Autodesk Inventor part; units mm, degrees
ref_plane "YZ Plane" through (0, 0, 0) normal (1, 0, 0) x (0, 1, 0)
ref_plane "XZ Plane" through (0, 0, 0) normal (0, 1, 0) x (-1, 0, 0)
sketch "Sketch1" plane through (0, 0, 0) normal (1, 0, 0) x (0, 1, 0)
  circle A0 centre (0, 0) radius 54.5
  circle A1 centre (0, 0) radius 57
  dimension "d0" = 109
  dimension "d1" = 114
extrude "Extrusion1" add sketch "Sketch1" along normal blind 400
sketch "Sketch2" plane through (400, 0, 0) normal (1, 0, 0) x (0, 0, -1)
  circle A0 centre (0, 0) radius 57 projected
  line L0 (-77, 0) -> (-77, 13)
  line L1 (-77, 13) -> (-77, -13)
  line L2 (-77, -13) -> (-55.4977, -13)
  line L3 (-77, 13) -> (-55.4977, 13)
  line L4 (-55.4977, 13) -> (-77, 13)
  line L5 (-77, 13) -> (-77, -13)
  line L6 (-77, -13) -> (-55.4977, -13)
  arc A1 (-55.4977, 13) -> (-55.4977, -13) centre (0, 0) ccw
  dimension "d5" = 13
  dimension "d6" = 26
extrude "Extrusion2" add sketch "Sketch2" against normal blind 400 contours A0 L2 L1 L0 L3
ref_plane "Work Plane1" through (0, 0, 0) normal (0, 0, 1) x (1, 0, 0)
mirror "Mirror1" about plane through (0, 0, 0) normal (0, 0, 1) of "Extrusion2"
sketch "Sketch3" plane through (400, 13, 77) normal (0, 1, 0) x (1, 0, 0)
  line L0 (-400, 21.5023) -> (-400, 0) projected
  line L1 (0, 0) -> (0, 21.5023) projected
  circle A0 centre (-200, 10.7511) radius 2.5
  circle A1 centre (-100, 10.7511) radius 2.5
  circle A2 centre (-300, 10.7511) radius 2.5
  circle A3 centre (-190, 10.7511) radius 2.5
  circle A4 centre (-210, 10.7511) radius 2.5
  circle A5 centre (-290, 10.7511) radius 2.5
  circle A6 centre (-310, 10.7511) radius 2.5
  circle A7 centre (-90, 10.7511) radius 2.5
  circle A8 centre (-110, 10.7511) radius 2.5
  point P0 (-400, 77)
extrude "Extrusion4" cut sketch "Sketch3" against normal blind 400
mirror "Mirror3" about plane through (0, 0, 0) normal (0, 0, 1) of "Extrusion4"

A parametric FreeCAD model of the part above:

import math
import FreeCAD as App
import Part
import Sketcher
from FreeCAD import Vector
Q = App.Units.Quantity

doc = App.newDocument("Part")
body = doc.addObject("PartDesign::Body", "Body")

sketch1 = body.newObject("Sketcher::SketchObject", "Sketch")
sketch1.AttachmentSupport = (doc.getObject("YZ_Plane"), [""])
sketch1.MapMode = "FlatFace"
sketch1.addGeometry(Part.Circle(Vector(0, 0, 0), Vector(0, 0, 1), 57), False)
sketch1.addGeometry(Part.Circle(Vector(0, 0, 0), Vector(0, 0, 1), 54.5), False)
sketch1.addConstraint(Sketcher.Constraint("Coincident", 0, 3, -1, 1))
sketch1.addConstraint(Sketcher.Constraint("Coincident", 1, 3, -1, 1))
sketch1.addConstraint(Sketcher.Constraint("Diameter", 0, Q("114 mm")))
sketch1.addConstraint(Sketcher.Constraint("Diameter", 1, Q("109 mm")))
pad1 = body.newObject("PartDesign::Pad", "Pad")
pad1.Profile = sketch1
pad1.Length = 400

sketch2 = body.newObject("Sketcher::SketchObject", "Sketch001")
sketch2.AttachmentSupport = (doc.getObject("YZ_Plane"), [""])
sketch2.MapMode = "FlatFace"
sketch2.AttachmentOffset = App.Placement(Vector(0, 0, 400), App.Rotation())
sketch2.addGeometry(Part.ArcOfCircle(Part.Circle(Vector(0, 0, 0), Vector(0, 0, 1), 57), math.radians(76.816508), math.radians(103.183492)), False)
sketch2.addGeometry(Part.LineSegment(Vector(13, 55.4977, 0), Vector(13, 77, 0)), False)
sketch2.addGeometry(Part.LineSegment(Vector(13, 77, 0), Vector(-13, 77, 0)), False)
sketch2.addGeometry(Part.LineSegment(Vector(-13, 77, 0), Vector(-13, 55.4977, 0)), False)
sketch2.addConstraint(Sketcher.Constraint("Coincident", 0, 1, 1, 1))
sketch2.addConstraint(Sketcher.Constraint("Coincident", 1, 2, 2, 1))
sketch2.addConstraint(Sketcher.Constraint("Coincident", 2, 2, 3, 1))
sketch2.addConstraint(Sketcher.Constraint("Coincident", 3, 2, 0, 2))
sketch2.addConstraint(Sketcher.Constraint("Vertical", 1))
sketch2.addConstraint(Sketcher.Constraint("Horizontal", 2))
sketch2.addConstraint(Sketcher.Constraint("Vertical", 3))
sketch2.addConstraint(Sketcher.Constraint("Coincident", 0, 3, -1, 1))
sketch2.addConstraint(Sketcher.Constraint("Horizontal", 0, 1, 3, 2))
sketch2.addConstraint(Sketcher.Constraint("DistanceX", 2, 2, 2, 1, Q("26 mm")))
sketch2.addConstraint(Sketcher.Constraint("Radius", 0, Q("57 mm")))
sketch2.addConstraint(Sketcher.Constraint("DistanceY", -1, 1, 1, 2, Q("77 mm")))
pad2 = body.newObject("PartDesign::Pad", "Pad001")
pad2.Profile = sketch2
pad2.Length = 400
pad2.Reversed = True
doc.recompute()

mirrored = body.newObject("PartDesign::Mirrored", "Mirrored")
mirrored.Originals = [pad2]
mirrored.MirrorPlane = (doc.getObject("XY_Plane"), [""])
body.Tip = mirrored

sketch3 = body.newObject("Sketcher::SketchObject", "Sketch002")
sketch3.AttachmentSupport = (doc.getObject("XZ_Plane"), [""])
sketch3.MapMode = "FlatFace"
sketch3.AttachmentOffset = App.Placement(Vector(0, 0, -13), App.Rotation())
sketch3.addGeometry(Part.Circle(Vector(200, 66.2489, 0), Vector(0, 0, 1), 2.5), False)
sketch3.addGeometry(Part.Circle(Vector(300, 66.2489, 0), Vector(0, 0, 1), 2.5), False)
sketch3.addGeometry(Part.Circle(Vector(100, 66.2489, 0), Vector(0, 0, 1), 2.5), False)
sketch3.addGeometry(Part.Circle(Vector(210, 66.2489, 0), Vector(0, 0, 1), 2.5), False)
sketch3.addGeometry(Part.Circle(Vector(190, 66.2489, 0), Vector(0, 0, 1), 2.5), False)
sketch3.addGeometry(Part.Circle(Vector(110, 66.2489, 0), Vector(0, 0, 1), 2.5), False)
sketch3.addGeometry(Part.Circle(Vector(90, 66.2489, 0), Vector(0, 0, 1), 2.5), False)
sketch3.addGeometry(Part.Circle(Vector(310, 66.2489, 0), Vector(0, 0, 1), 2.5), False)
sketch3.addGeometry(Part.Circle(Vector(290, 66.2489, 0), Vector(0, 0, 1), 2.5), False)
sketch3.addConstraint(Sketcher.Constraint("Equal", 0, 1))
sketch3.addConstraint(Sketcher.Constraint("Equal", 1, 2))
sketch3.addConstraint(Sketcher.Constraint("Equal", 2, 3))
sketch3.addConstraint(Sketcher.Constraint("Equal", 3, 4))
sketch3.addConstraint(Sketcher.Constraint("Equal", 4, 5))
sketch3.addConstraint(Sketcher.Constraint("Equal", 5, 6))
sketch3.addConstraint(Sketcher.Constraint("Equal", 6, 7))
sketch3.addConstraint(Sketcher.Constraint("Equal", 7, 8))
sketch3.addConstraint(Sketcher.Constraint("Horizontal", 0, 3, 1, 3))
sketch3.addConstraint(Sketcher.Constraint("Horizontal", 1, 3, 2, 3))
sketch3.addConstraint(Sketcher.Constraint("Horizontal", 2, 3, 3, 3))
sketch3.addConstraint(Sketcher.Constraint("Horizontal", 3, 3, 4, 3))
sketch3.addConstraint(Sketcher.Constraint("Horizontal", 4, 3, 5, 3))
sketch3.addConstraint(Sketcher.Constraint("Horizontal", 5, 3, 6, 3))
sketch3.addConstraint(Sketcher.Constraint("Horizontal", 6, 3, 7, 3))
sketch3.addConstraint(Sketcher.Constraint("Horizontal", 7, 3, 8, 3))
sketch3.addConstraint(Sketcher.Constraint("Diameter", 0, Q("5 mm")))
sketch3.addConstraint(Sketcher.Constraint("DistanceX", -1, 1, 0, 3, Q("200 mm")))
sketch3.addConstraint(Sketcher.Constraint("DistanceX", -1, 1, 1, 3, Q("300 mm")))
sketch3.addConstraint(Sketcher.Constraint("DistanceX", -1, 1, 2, 3, Q("100 mm")))
sketch3.addConstraint(Sketcher.Constraint("DistanceX", -1, 1, 3, 3, Q("210 mm")))
sketch3.addConstraint(Sketcher.Constraint("DistanceX", -1, 1, 4, 3, Q("190 mm")))
sketch3.addConstraint(Sketcher.Constraint("DistanceX", -1, 1, 5, 3, Q("110 mm")))
sketch3.addConstraint(Sketcher.Constraint("DistanceX", -1, 1, 6, 3, Q("90 mm")))
sketch3.addConstraint(Sketcher.Constraint("DistanceX", -1, 1, 7, 3, Q("310 mm")))
sketch3.addConstraint(Sketcher.Constraint("DistanceX", -1, 1, 8, 3, Q("290 mm")))
sketch3.addConstraint(Sketcher.Constraint("DistanceY", -1, 1, 0, 3, Q("66.249 mm")))
pocket1 = body.newObject("PartDesign::Pocket", "Pocket")
pocket1.Profile = sketch3
pocket1.Length = 400
pocket1.Reversed = True
doc.recompute()

mirrored2 = body.newObject("PartDesign::Mirrored", "Mirrored001")
mirrored2.Originals = [pocket1]
mirrored2.MirrorPlane = (doc.getObject("XY_Plane"), [""])
body.Tip = mirrored2

doc.recompute()
